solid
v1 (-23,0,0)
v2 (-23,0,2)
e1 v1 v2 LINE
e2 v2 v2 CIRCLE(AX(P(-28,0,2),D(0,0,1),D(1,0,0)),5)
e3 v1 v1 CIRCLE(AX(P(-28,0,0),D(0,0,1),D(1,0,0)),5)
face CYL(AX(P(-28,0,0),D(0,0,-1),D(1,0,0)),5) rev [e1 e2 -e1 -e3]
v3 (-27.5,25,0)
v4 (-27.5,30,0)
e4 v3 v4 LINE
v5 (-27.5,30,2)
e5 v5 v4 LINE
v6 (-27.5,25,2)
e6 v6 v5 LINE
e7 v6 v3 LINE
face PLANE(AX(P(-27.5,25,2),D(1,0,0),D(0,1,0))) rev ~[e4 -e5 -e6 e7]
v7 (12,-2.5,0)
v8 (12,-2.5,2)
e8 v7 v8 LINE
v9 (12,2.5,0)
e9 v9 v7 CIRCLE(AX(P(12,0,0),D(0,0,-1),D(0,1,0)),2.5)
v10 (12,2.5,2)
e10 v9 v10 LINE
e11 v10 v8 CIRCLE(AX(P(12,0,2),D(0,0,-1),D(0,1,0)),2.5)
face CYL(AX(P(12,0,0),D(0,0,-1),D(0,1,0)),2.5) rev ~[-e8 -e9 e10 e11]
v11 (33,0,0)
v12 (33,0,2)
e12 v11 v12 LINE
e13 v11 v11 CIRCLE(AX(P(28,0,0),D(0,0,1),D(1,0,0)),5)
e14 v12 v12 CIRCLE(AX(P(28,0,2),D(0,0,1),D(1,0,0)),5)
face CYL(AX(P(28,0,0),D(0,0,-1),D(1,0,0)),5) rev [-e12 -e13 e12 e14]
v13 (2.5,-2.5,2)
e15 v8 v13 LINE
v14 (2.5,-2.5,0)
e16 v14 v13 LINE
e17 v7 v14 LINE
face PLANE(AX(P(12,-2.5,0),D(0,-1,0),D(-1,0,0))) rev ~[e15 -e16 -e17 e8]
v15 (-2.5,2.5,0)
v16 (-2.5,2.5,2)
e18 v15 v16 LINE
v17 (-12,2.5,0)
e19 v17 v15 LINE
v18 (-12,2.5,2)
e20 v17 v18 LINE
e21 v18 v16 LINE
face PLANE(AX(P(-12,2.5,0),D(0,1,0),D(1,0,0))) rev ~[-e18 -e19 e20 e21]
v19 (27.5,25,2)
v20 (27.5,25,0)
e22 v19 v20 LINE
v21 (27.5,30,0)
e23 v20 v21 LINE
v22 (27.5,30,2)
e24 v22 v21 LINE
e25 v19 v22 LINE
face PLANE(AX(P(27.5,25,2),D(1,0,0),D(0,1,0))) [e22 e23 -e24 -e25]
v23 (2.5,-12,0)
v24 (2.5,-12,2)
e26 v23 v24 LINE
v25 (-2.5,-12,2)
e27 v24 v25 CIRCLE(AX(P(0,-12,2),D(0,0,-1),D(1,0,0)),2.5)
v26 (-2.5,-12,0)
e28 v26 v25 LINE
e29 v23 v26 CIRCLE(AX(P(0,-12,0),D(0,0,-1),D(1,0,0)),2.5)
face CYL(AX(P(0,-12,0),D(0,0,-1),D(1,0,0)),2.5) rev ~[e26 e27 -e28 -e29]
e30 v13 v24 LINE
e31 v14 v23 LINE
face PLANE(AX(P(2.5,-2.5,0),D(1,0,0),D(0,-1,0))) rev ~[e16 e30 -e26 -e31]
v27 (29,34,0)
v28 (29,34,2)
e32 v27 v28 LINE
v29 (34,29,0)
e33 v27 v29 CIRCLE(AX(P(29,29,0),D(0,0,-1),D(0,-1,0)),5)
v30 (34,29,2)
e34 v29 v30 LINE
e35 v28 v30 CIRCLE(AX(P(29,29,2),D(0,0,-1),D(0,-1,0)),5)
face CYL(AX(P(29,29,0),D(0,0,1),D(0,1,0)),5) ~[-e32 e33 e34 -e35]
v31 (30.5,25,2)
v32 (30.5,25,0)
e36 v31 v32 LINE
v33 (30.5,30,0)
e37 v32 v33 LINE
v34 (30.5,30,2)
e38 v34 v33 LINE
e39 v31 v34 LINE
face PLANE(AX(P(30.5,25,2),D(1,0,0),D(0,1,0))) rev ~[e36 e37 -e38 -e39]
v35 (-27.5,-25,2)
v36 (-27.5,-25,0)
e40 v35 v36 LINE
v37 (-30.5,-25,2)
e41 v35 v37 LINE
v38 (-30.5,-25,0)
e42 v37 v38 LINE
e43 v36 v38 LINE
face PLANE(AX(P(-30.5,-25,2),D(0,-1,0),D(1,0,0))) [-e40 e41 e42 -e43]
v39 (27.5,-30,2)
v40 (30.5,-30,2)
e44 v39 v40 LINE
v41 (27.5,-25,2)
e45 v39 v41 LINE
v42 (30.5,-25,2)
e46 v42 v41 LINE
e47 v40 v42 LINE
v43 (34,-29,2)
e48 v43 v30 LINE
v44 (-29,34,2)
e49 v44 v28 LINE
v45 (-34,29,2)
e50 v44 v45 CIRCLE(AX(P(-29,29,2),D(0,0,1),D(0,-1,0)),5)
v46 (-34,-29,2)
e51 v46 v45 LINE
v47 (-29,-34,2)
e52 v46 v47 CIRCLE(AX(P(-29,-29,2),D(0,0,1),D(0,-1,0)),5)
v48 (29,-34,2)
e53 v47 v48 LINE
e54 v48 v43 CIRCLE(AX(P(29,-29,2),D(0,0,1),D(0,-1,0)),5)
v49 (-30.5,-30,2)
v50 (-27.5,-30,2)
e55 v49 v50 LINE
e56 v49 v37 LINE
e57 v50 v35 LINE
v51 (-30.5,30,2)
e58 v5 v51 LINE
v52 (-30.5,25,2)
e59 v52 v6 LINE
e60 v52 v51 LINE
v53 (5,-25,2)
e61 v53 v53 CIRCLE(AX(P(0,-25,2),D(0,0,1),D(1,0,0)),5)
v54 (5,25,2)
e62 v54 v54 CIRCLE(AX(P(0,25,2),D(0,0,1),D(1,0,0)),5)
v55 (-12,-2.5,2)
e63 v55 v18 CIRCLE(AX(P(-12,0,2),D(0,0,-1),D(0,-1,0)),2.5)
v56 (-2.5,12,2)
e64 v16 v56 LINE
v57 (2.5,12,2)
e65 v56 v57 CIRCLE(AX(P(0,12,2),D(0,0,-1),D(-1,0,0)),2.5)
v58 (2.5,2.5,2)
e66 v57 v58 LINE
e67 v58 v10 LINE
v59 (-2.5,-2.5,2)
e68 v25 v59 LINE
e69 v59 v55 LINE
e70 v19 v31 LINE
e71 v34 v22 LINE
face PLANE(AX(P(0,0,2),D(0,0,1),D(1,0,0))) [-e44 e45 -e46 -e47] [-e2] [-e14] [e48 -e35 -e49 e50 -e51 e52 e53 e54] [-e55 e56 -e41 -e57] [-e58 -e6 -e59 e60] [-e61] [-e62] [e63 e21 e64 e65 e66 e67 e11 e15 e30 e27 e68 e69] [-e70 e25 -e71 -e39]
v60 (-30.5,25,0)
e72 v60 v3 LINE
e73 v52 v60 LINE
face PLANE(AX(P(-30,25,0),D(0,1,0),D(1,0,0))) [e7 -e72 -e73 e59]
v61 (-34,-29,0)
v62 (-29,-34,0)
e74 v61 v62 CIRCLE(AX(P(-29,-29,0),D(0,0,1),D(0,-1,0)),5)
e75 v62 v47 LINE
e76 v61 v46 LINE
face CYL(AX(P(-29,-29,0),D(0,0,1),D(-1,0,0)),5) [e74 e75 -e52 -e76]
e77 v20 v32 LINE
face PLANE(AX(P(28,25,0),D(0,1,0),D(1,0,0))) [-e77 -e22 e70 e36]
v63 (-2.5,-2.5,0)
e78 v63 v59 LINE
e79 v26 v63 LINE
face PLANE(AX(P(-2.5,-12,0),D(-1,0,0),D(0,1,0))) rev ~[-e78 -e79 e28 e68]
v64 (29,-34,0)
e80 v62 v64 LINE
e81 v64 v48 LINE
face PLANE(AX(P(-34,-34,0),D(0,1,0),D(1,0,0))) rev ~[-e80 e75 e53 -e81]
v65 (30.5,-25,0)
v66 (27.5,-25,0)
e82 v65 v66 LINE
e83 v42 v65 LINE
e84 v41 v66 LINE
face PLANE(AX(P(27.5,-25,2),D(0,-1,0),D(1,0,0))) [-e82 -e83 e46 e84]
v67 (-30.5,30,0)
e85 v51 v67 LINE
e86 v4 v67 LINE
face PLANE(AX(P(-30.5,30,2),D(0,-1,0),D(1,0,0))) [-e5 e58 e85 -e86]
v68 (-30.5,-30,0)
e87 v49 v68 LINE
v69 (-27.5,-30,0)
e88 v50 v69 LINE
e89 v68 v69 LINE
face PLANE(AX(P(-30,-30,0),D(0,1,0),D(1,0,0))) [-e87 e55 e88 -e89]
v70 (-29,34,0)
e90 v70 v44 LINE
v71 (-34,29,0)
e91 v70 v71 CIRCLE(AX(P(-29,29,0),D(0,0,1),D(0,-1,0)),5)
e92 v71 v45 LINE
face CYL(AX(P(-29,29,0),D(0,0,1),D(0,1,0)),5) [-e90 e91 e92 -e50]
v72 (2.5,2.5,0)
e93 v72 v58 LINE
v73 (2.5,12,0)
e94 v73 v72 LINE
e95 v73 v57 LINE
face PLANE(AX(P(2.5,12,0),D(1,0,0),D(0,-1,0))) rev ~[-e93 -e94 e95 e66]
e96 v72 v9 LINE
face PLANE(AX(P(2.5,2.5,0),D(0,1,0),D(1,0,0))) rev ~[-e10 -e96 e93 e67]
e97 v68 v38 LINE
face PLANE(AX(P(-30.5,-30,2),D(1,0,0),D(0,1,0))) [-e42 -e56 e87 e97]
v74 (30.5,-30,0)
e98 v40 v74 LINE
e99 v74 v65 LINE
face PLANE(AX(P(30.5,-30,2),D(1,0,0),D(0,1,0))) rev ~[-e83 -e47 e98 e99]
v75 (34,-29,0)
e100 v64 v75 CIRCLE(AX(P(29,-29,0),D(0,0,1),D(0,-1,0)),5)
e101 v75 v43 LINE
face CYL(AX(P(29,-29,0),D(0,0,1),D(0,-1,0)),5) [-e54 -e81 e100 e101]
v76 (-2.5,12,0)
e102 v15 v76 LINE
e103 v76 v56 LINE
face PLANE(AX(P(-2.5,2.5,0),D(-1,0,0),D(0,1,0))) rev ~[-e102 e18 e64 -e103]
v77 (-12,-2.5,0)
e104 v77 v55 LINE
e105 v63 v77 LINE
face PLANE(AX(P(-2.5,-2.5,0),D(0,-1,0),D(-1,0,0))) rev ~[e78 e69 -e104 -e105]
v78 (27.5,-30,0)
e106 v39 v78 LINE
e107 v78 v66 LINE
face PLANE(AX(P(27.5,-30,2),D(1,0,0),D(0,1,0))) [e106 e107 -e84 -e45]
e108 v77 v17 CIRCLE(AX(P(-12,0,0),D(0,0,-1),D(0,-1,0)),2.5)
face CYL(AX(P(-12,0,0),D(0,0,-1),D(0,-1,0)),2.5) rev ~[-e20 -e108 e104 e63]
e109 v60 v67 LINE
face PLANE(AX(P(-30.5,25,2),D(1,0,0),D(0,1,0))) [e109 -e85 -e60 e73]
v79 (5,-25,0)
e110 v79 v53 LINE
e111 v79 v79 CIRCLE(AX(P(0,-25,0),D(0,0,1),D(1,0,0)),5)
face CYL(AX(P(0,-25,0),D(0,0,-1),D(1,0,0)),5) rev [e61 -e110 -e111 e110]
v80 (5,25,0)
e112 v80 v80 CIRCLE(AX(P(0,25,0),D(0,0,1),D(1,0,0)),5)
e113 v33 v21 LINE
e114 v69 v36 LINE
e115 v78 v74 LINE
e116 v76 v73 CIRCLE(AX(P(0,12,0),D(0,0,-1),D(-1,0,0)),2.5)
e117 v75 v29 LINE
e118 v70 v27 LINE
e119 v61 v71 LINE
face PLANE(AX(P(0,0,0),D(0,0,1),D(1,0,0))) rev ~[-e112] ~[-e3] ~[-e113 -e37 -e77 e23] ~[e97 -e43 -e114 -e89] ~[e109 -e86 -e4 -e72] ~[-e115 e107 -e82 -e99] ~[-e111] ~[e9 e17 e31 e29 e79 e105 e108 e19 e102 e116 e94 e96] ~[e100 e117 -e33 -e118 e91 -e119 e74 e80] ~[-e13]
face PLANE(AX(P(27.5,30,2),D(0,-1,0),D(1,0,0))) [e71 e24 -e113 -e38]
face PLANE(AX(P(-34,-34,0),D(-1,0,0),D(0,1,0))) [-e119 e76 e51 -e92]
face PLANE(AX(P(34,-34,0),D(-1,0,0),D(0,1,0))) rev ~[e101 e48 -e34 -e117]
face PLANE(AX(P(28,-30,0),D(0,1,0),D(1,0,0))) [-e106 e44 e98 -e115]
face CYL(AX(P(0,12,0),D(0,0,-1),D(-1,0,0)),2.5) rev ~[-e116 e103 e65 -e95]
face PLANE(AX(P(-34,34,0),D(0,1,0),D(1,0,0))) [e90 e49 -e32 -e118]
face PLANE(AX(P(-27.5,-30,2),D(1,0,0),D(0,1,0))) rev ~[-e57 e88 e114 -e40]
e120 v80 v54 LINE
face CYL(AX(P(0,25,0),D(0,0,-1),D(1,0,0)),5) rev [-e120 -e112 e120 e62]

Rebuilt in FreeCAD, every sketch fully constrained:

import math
import FreeCAD as App
import Part
import Sketcher


def edges_at(feature, points):
    """Names of the edges that pass closest to the given points."""
    edges = feature.Shape.Edges
    near = lambda p: min(range(len(edges)), key=lambda i: edges[i].distToShape(Part.Vertex(*p))[0])
    return sorted({f"Edge{near(p) + 1}" for p in points})


def add_polygon(sketch, points):
    """Adds a closed chain of lines whose ends are joined by coincident constraints."""
    first, n = sketch.GeometryCount, len(points)
    for a, b in zip(points, points[1:] + points[:1]):
        sketch.addGeometry(Part.LineSegment(App.Vector(*a, 0), App.Vector(*b, 0)), False)
    for i in range(n):
        sketch.addConstraint(Sketcher.Constraint("Coincident", first + i, 2, first + (i + 1) % n, 1))

doc = App.newDocument("Part")
body = doc.addObject("PartDesign::Body", "Body")

# Sketch on XY plane
sketch1 = doc.addObject("Sketcher::SketchObject", "Sketch")
body.addObject(sketch1)
sketch1.AttachmentSupport = (doc.XY_Plane, [""])
sketch1.MapMode = "FlatFace"
add_polygon(sketch1, [(-34, 34), (-34, -34), (34, -34), (34, 34)])  # lines 0-3
add_polygon(sketch1, [(-28, -30), (-30, -30), (-30, -25), (-28, -25)])  # lines 4-7
sketch1.addGeometry(Part.Circle(App.Vector(0, -25, 0), App.Vector(0, 0, 1), 5), False)  # 8
add_polygon(sketch1, [(30, -30), (28, -30), (28, -25), (30, -25)])  # lines 9-12
sketch1.addGeometry(Part.Circle(App.Vector(-28, 0, 0), App.Vector(0, 0, 1), 5), False)  # 13
add_polygon(sketch1, [(-28, 25), (-30, 25), (-30, 30), (-28, 30)])  # lines 14-17
sketch1.addGeometry(Part.LineSegment(App.Vector(-2.5, -2.5, 0), App.Vector(-12, -2.5, 0)), False)  # 18
sketch1.addGeometry(Part.ArcOfCircle(Part.Circle(App.Vector(-12, 0, 0), App.Vector(0, 0, 1), 2.5), math.radians(90), math.radians(270)), False)  # 19
sketch1.addGeometry(Part.LineSegment(App.Vector(-12, 2.5, 0), App.Vector(-2.5, 2.5, 0)), False)  # 20
sketch1.addGeometry(Part.LineSegment(App.Vector(-2.5, 2.5, 0), App.Vector(-2.5, 12, 0)), False)  # 21
sketch1.addGeometry(Part.ArcOfCircle(Part.Circle(App.Vector(0, 12, 0), App.Vector(0, 0, 1), 2.5), math.radians(0), math.radians(180)), False)  # 22
sketch1.addGeometry(Part.LineSegment(App.Vector(2.5, 12, 0), App.Vector(2.5, 2.5, 0)), False)  # 23
sketch1.addGeometry(Part.LineSegment(App.Vector(2.5, 2.5, 0), App.Vector(12, 2.5, 0)), False)  # 24
sketch1.addGeometry(Part.ArcOfCircle(Part.Circle(App.Vector(12, 0, 0), App.Vector(0, 0, 1), 2.5), math.radians(-90), math.radians(90)), False)  # 25
sketch1.addGeometry(Part.LineSegment(App.Vector(12, -2.5, 0), App.Vector(2.5, -2.5, 0)), False)  # 26
sketch1.addGeometry(Part.LineSegment(App.Vector(2.5, -2.5, 0), App.Vector(2.5, -12, 0)), False)  # 27
sketch1.addGeometry(Part.ArcOfCircle(Part.Circle(App.Vector(0, -12, 0), App.Vector(0, 0, 1), 2.5), math.radians(180), math.radians(360)), False)  # 28
sketch1.addGeometry(Part.LineSegment(App.Vector(-2.5, -12, 0), App.Vector(-2.5, -2.5, 0)), False)  # 29
sketch1.addGeometry(Part.Circle(App.Vector(28, 0, 0), App.Vector(0, 0, 1), 5), False)  # 30
sketch1.addGeometry(Part.Circle(App.Vector(0, 25, 0), App.Vector(0, 0, 1), 5), False)  # 31
add_polygon(sketch1, [(30, 25), (28, 25), (28, 30), (30, 30)])  # lines 32-35
sketch1.addConstraint([
    Sketcher.Constraint("Tangent", 18, 2, 19, 2),
    Sketcher.Constraint("Tangent", 19, 1, 20, 1),
    Sketcher.Constraint("Coincident", 20, 2, 21, 1),
    Sketcher.Constraint("Tangent", 21, 2, 22, 2),
    Sketcher.Constraint("Tangent", 22, 1, 23, 1),
    Sketcher.Constraint("Coincident", 23, 2, 24, 1),
    Sketcher.Constraint("Tangent", 24, 2, 25, 2),
    Sketcher.Constraint("Tangent", 25, 1, 26, 1),
    Sketcher.Constraint("Coincident", 26, 2, 27, 1),
    Sketcher.Constraint("Tangent", 27, 2, 28, 2),
    Sketcher.Constraint("Tangent", 28, 1, 29, 1),
    Sketcher.Constraint("Coincident", 29, 2, 18, 1),
    Sketcher.Constraint("Vertical", 0),
    Sketcher.Constraint("Horizontal", 1),
    Sketcher.Constraint("Vertical", 2),
    Sketcher.Constraint("Horizontal", 3),
    Sketcher.Constraint("Horizontal", 4),
    Sketcher.Constraint("Vertical", 5),
    Sketcher.Constraint("Horizontal", 6),
    Sketcher.Constraint("Vertical", 7),
    Sketcher.Constraint("Horizontal", 9),
    Sketcher.Constraint("Vertical", 10),
    Sketcher.Constraint("Horizontal", 11),
    Sketcher.Constraint("Vertical", 12),
    Sketcher.Constraint("Horizontal", 14),
    Sketcher.Constraint("Vertical", 15),
    Sketcher.Constraint("Horizontal", 16),
    Sketcher.Constraint("Vertical", 17),
    Sketcher.Constraint("Horizontal", 18),
    Sketcher.Constraint("Horizontal", 20),
    Sketcher.Constraint("Vertical", 21),
    Sketcher.Constraint("Vertical", 23),
    Sketcher.Constraint("Horizontal", 24),
    Sketcher.Constraint("Horizontal", 26),
    Sketcher.Constraint("Vertical", 27),
    Sketcher.Constraint("Vertical", 29),
    Sketcher.Constraint("Horizontal", 32),
    Sketcher.Constraint("Vertical", 33),
    Sketcher.Constraint("Horizontal", 34),
    Sketcher.Constraint("Vertical", 35),
    Sketcher.Constraint("Equal", 8, 13),
    Sketcher.Constraint("Equal", 19, 22),
    Sketcher.Constraint("Equal", 22, 25),
    Sketcher.Constraint("Equal", 25, 28),
    Sketcher.Constraint("Equal", 13, 30),
    Sketcher.Constraint("Equal", 30, 31),
    Sketcher.Constraint("Symmetric", 19, 3, 25, 3, -1, 1),
    Sketcher.Constraint("Symmetric", 22, 3, 28, 3, -1, 1),
    Sketcher.Constraint("Symmetric", 13, 3, 30, 3, -1, 1),
    Sketcher.Constraint("Symmetric", 8, 3, 31, 3, -1, 1),
    Sketcher.Constraint("Symmetric", 0, 2, 2, 2, -1, 1),
    Sketcher.Constraint("Symmetric", 11, 2, 14, 2, -1, 1),
    Sketcher.Constraint("Symmetric", 9, 2, 16, 2, -1, 1),
    Sketcher.Constraint("Symmetric", 6, 2, 32, 2, -1, 1),
    Sketcher.Constraint("Symmetric", 4, 2, 34, 2, -1, 1),
    Sketcher.Constraint("Symmetric", 7, 2, 9, 2, -2),
    Sketcher.Constraint("Symmetric", 5, 2, 11, 2, -2),
    Sketcher.Constraint("Symmetric", 20, 2, 23, 2, -2),
    Sketcher.Constraint("PointOnObject", 8, 3, -2),
    Sketcher.Constraint("PointOnObject", 13, 3, -1),
    Sketcher.Constraint("Horizontal", 8, 3, 5, 2),
    Sketcher.Constraint("Vertical", 13, 3, 6, 2),
    Sketcher.Constraint("Equal", 3, 0),
    Sketcher.Constraint("Equal", 26, 21),
    Sketcher.Constraint("Diameter", 8, 10.0),
    Sketcher.Constraint("Radius", 19, 2.5),
    Sketcher.Constraint("DistanceX", 1, 1, 1, 2, 68.0),
    Sketcher.Constraint("DistanceX", 4, 2, 4, 1, 2.0),
    Sketcher.Constraint("DistanceY", 5, 1, 5, 2, 5.0),
    Sketcher.Constraint("DistanceX", 18, 2, 18, 1, 9.5),
    Sketcher.Constraint("DistanceY", 8, 3, -1, 1, 25.0),
    Sketcher.Constraint("DistanceX", 13, 3, -1, 1, 28.0),
])
pad1 = doc.addObject("PartDesign::Pad", "Pad")
body.addObject(pad1)
pad1.Profile = sketch1
pad1.Length = 2
doc.recompute()

fillet = doc.addObject("PartDesign::Fillet", "Fillet")
body.addObject(fillet)
fillet.Base = (pad1, edges_at(pad1, [(34, 34, 1)]))
fillet.Radius = 5
doc.recompute()

fillet2 = doc.addObject("PartDesign::Fillet", "Fillet001")
body.addObject(fillet2)
fillet2.Base = (fillet, edges_at(fillet, [(-34, 34, 1)]))
fillet2.Radius = 5
doc.recompute()

fillet3 = doc.addObject("PartDesign::Fillet", "Fillet002")
body.addObject(fillet3)
fillet3.Base = (fillet2, edges_at(fillet2, [(-34, -34, 1)]))
fillet3.Radius = 5
doc.recompute()

fillet4 = doc.addObject("PartDesign::Fillet", "Fillet003")
body.addObject(fillet4)
fillet4.Base = (fillet3, edges_at(fillet3, [(34, -34, 1)]))
fillet4.Radius = 5

# Sketch on XY plane
sketch2 = doc.addObject("Sketcher::SketchObject", "Sketch001")
body.addObject(sketch2)
sketch2.AttachmentSupport = (doc.XY_Plane, [""])
sketch2.MapMode = "FlatFace"
sketch2.AttachmentOffset = App.Placement(App.Vector(0, 0, 2), App.Rotation())
add_polygon(sketch2, [(27.5, 30), (27.5, 25), (30.5, 25), (30.5, 30)])  # lines 0-3
add_polygon(sketch2, [(-30.5, 30), (-30.5, 25), (-27.5, 25), (-27.5, 30)])  # lines 4-7
add_polygon(sketch2, [(27.5, -25), (27.5, -30), (30.5, -30), (30.5, -25)])  # lines 8-11
add_polygon(sketch2, [(-30.5, -25), (-30.5, -30), (-27.5, -30), (-27.5, -25)])  # lines 12-15
sketch2.addConstraint([
    Sketcher.Constraint("Vertical", 0),
    Sketcher.Constraint("Horizontal", 1),
    Sketcher.Constraint("Vertical", 2),
    Sketcher.Constraint("Horizontal", 3),
    Sketcher.Constraint("Vertical", 4),
    Sketcher.Constraint("Horizontal", 5),
    Sketcher.Constraint("Vertical", 6),
    Sketcher.Constraint("Horizontal", 7),
    Sketcher.Constraint("Vertical", 8),
    Sketcher.Constraint("Horizontal", 9),
    Sketcher.Constraint("Vertical", 10),
    Sketcher.Constraint("Horizontal", 11),
    Sketcher.Constraint("Vertical", 12),
    Sketcher.Constraint("Horizontal", 13),
    Sketcher.Constraint("Vertical", 14),
    Sketcher.Constraint("Horizontal", 15),
    Sketcher.Constraint("Symmetric", 6, 2, 8, 2, -1, 1),
    Sketcher.Constraint("Symmetric", 4, 2, 10, 2, -1, 1),
    Sketcher.Constraint("Symmetric", 2, 2, 12, 2, -1, 1),
    Sketcher.Constraint("Symmetric", 0, 2, 14, 2, -1, 1),
    Sketcher.Constraint("Symmetric", 1, 2, 4, 2, -2),
    Sketcher.Constraint("Symmetric", 3, 2, 6, 2, -2),
    Sketcher.Constraint("DistanceX", 1, 1, 1, 2, 3.0),
    Sketcher.Constraint("DistanceY", 0, 2, 0, 1, 5.0),
    Sketcher.Constraint("DistanceY", -1, 1, 0, 2, 25.0),
    Sketcher.Constraint("DistanceX", 4, 2, 0, 2, 58.0),
])
pocket1 = doc.addObject("PartDesign::Pocket", "Pocket")
body.addObject(pocket1)
pocket1.Profile = sketch2
pocket1.Length = 10

doc.recompute()
